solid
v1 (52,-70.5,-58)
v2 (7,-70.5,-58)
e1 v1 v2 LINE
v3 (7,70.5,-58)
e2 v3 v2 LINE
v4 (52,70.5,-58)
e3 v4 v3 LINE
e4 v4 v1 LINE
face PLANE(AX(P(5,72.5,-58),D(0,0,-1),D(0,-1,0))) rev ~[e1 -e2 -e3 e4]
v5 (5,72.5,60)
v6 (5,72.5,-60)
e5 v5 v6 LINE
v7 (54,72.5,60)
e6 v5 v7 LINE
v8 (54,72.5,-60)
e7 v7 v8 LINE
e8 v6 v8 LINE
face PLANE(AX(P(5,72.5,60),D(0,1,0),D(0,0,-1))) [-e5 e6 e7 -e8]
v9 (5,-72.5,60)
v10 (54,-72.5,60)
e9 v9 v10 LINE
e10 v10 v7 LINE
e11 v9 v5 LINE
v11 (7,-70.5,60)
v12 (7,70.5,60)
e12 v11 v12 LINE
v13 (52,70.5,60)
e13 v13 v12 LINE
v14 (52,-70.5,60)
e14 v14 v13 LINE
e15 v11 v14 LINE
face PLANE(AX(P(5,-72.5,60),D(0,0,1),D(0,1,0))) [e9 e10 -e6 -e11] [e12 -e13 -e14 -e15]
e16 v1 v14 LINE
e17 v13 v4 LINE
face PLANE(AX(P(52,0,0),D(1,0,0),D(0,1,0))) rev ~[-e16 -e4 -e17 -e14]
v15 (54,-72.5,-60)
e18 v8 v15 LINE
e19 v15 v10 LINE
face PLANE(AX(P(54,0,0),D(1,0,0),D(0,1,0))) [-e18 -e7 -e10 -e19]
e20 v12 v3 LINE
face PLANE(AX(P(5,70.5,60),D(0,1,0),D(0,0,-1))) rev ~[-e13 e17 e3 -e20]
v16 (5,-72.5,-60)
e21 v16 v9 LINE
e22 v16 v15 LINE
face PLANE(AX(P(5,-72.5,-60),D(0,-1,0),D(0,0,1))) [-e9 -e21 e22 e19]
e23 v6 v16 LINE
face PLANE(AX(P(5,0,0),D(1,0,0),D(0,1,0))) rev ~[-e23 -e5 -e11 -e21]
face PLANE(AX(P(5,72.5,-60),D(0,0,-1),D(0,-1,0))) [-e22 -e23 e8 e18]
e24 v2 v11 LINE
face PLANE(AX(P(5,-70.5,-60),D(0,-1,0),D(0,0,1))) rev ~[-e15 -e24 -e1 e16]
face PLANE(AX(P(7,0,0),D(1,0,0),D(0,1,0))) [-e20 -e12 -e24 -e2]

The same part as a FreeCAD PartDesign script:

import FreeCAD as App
import Part
import Sketcher
from FreeCAD import Vector


def faces_at(feature, points):
    """Names of the faces that lie closest to the given points."""
    faces = feature.Shape.Faces
    near = lambda p: min(range(len(faces)), key=lambda i: faces[i].distToShape(Part.Vertex(*p))[0])
    return sorted({f"Face{near(p) + 1}" for p in points})

doc = App.newDocument("Part")
body = doc.addObject("PartDesign::Body", "Body")

# Sketch on YZ plane
sketch1 = doc.addObject("Sketcher::SketchObject", "Sketch")
body.addObject(sketch1)
sketch1.AttachmentSupport = (doc.YZ_Plane, [""])
sketch1.MapMode = "FlatFace"
sketch1.AttachmentOffset = App.Placement(Vector(0, 0, 5), App.Rotation())
sketch1.addGeometry(Part.LineSegment(Vector(72, 60, 0), Vector(-72, 60, 0)), False)
sketch1.addGeometry(Part.LineSegment(Vector(-72, 60, 0), Vector(-72, -60, 0)), False)
sketch1.addGeometry(Part.LineSegment(Vector(-72, -60, 0), Vector(72, -60, 0)), False)
sketch1.addGeometry(Part.LineSegment(Vector(72, -60, 0), Vector(72, 60, 0)), False)
sketch1.addConstraint(Sketcher.Constraint("Coincident", 0, 2, 1, 1))
sketch1.addConstraint(Sketcher.Constraint("Coincident", 1, 2, 2, 1))
sketch1.addConstraint(Sketcher.Constraint("Coincident", 2, 2, 3, 1))
sketch1.addConstraint(Sketcher.Constraint("Coincident", 3, 2, 0, 1))
sketch1.addConstraint(Sketcher.Constraint("Horizontal", 0))
sketch1.addConstraint(Sketcher.Constraint("Vertical", 1))
sketch1.addConstraint(Sketcher.Constraint("Horizontal", 2))
sketch1.addConstraint(Sketcher.Constraint("Vertical", 3))
sketch1.addConstraint(Sketcher.Constraint("Symmetric", 0, 2, 2, 2, -1, 1))
sketch1.addConstraint(Sketcher.Constraint("DistanceX", 0, 2, 0, 1, 145.0))
sketch1.addConstraint(Sketcher.Constraint("DistanceY", 1, 2, 1, 1, 120.0))
pad1 = doc.addObject("PartDesign::Pad", "Pad")
body.addObject(pad1)
pad1.Profile = sketch1
pad1.Length = 49
doc.recompute()

thickness = doc.addObject("PartDesign::Thickness", "Thickness")
body.addObject(thickness)
thickness.Base = (pad1, faces_at(pad1, [(21.333, -24.167, 60)]))
thickness.Value = 2
thickness.Reversed = True
thickness.Join = "Intersection"

doc.recompute()
